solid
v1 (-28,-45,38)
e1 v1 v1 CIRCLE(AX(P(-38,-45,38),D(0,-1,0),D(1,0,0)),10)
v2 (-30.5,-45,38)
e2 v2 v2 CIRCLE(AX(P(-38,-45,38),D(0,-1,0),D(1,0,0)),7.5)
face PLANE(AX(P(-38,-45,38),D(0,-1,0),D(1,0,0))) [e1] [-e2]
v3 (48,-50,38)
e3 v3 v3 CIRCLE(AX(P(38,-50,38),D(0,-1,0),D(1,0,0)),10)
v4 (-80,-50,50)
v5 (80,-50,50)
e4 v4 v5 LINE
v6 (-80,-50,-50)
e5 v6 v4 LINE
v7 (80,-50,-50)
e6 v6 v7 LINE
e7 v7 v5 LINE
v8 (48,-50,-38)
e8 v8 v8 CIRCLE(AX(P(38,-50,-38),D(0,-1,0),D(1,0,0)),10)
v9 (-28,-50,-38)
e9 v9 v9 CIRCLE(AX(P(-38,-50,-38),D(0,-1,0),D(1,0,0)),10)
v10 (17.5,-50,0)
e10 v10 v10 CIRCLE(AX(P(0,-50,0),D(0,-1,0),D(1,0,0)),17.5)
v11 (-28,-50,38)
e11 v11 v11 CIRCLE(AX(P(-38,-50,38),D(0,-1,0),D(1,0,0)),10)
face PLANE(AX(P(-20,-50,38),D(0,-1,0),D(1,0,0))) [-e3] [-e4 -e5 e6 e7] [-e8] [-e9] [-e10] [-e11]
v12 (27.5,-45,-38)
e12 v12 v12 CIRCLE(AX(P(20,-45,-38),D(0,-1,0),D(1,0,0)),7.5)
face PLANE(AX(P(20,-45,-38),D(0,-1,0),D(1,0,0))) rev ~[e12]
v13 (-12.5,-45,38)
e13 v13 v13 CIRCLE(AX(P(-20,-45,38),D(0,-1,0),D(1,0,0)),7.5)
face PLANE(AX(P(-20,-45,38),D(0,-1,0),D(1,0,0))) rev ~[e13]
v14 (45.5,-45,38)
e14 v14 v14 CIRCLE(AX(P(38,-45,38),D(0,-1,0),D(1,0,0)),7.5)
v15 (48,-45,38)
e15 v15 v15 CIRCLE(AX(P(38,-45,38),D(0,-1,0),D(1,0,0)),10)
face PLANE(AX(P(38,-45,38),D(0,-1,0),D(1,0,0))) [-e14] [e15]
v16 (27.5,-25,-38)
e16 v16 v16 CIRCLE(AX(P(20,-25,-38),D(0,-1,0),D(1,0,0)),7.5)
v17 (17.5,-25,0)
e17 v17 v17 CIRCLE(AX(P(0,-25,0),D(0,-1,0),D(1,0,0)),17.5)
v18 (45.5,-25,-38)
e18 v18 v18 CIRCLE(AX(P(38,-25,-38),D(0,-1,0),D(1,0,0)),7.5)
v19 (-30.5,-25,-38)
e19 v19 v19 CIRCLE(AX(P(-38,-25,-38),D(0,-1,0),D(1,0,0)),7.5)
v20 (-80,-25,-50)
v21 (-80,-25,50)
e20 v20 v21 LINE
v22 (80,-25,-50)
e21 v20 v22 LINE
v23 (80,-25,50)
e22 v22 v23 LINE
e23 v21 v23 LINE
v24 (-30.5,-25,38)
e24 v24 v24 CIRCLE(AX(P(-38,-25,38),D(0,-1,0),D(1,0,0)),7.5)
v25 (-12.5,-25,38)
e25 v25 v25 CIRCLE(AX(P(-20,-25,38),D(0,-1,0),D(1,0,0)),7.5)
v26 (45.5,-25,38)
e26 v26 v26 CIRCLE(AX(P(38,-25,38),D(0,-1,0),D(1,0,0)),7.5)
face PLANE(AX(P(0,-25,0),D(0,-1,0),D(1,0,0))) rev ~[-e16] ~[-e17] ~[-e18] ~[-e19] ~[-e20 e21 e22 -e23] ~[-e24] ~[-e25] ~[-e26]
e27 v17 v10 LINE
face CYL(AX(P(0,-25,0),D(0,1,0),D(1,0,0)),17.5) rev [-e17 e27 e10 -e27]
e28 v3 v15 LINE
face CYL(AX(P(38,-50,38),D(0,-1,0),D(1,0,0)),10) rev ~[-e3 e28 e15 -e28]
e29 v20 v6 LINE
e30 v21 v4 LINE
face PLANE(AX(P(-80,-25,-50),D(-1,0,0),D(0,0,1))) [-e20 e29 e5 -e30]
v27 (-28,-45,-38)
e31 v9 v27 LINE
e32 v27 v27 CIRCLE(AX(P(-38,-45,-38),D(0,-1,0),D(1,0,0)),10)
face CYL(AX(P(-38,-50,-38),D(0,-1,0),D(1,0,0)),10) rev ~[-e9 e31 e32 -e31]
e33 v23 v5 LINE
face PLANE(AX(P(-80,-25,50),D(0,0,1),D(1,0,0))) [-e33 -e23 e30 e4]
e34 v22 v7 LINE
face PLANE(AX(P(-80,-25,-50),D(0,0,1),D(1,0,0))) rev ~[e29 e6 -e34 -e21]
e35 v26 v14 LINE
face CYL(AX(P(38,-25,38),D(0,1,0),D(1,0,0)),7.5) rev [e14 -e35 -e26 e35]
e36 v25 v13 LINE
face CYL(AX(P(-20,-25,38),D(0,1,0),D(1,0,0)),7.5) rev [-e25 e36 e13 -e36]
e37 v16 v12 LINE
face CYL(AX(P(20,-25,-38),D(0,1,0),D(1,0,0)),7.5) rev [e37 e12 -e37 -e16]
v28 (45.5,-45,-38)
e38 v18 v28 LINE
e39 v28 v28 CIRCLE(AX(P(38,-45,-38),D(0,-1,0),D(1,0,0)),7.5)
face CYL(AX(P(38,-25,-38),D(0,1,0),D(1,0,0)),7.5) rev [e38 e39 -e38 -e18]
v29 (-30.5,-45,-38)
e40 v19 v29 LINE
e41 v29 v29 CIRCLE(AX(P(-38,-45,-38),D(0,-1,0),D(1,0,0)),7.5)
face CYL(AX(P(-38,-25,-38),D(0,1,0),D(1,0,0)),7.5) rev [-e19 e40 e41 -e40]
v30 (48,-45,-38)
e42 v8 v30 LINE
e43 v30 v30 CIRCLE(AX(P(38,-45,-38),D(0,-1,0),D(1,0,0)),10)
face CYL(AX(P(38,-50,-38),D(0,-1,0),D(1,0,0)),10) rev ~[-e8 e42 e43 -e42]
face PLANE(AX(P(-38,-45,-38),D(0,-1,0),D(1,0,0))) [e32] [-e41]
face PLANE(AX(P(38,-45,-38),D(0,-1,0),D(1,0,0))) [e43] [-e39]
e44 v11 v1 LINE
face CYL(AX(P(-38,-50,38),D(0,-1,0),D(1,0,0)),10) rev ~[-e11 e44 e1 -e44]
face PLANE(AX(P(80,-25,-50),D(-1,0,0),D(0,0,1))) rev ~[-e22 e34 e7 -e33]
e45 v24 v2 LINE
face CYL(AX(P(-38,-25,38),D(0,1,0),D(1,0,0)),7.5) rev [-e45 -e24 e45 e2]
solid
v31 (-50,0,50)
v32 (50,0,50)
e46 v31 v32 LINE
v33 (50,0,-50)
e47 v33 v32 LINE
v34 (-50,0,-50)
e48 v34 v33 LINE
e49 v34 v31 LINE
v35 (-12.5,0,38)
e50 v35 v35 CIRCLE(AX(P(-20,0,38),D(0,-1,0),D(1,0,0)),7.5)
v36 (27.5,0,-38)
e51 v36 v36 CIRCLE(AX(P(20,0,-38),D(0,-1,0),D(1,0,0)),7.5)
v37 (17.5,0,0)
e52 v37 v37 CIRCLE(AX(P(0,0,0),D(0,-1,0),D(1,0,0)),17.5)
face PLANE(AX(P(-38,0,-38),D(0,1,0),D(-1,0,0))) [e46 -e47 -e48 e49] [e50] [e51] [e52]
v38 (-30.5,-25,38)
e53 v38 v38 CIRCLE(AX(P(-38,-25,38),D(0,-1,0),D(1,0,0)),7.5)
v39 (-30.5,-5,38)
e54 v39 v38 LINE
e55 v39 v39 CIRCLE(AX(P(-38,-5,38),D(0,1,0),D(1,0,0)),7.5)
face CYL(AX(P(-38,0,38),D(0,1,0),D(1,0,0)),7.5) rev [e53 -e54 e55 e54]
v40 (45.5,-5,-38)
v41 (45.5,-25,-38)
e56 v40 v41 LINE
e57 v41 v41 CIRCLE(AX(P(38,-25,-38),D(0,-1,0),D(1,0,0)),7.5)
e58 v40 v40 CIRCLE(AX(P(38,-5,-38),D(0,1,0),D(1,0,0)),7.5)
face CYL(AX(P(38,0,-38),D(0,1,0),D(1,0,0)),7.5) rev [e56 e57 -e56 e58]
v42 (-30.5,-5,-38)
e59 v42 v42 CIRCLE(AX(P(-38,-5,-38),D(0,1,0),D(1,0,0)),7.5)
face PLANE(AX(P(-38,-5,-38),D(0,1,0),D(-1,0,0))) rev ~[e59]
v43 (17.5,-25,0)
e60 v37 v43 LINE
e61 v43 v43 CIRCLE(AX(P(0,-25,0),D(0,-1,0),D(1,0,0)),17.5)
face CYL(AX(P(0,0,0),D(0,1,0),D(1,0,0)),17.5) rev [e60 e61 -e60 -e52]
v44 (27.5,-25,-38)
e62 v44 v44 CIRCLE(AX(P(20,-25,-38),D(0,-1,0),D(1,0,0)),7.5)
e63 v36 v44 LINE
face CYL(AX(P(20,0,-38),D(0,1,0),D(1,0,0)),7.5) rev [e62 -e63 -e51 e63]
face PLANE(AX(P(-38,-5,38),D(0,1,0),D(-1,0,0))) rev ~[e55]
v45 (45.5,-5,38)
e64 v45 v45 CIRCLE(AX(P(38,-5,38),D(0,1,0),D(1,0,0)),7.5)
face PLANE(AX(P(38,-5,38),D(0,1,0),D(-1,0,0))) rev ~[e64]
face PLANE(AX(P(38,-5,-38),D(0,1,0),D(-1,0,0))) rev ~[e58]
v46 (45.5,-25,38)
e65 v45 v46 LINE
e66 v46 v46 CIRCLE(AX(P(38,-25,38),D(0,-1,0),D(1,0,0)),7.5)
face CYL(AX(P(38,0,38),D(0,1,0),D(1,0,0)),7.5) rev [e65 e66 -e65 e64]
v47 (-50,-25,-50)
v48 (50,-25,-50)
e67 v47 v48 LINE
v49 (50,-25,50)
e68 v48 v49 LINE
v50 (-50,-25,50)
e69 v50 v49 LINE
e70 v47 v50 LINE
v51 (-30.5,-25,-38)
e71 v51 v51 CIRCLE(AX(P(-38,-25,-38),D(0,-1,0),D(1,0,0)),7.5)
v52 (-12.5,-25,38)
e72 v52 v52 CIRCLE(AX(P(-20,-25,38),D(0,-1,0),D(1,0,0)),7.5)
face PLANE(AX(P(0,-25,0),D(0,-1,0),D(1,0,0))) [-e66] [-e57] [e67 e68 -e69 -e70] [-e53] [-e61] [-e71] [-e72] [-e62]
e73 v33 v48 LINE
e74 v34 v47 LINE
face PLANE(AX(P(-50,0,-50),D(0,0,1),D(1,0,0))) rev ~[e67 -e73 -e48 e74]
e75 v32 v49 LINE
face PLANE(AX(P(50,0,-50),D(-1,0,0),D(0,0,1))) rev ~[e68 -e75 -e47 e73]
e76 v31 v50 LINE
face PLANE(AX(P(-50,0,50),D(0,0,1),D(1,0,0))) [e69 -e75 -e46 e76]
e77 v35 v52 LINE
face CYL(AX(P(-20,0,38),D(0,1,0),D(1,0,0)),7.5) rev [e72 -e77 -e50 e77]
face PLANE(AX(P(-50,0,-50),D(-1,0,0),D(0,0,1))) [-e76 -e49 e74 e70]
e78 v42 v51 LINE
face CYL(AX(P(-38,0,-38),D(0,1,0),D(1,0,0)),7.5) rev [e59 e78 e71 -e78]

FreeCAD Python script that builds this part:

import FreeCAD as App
import Part
import Sketcher

V = App.Vector


def add_polygon(sketch, points):
    """Adds a closed chain of lines whose ends are joined by coincident constraints."""
    first, n = sketch.GeometryCount, len(points)
    for a, b in zip(points, points[1:] + points[:1]):
        sketch.addGeometry(Part.LineSegment(App.Vector(*a, 0), App.Vector(*b, 0)), False)
    for i in range(n):
        sketch.addConstraint(Sketcher.Constraint("Coincident", first + i, 2, first + (i + 1) % n, 1))

doc = App.newDocument("Part")
params = doc.addObject("Spreadsheet::Sheet", "Params")
for row, (alias, value) in enumerate([
    ("sketch1_diameter", "15 mm"),
    ("sketch1_diameter2", "35 mm"),
    ("sketch1_width", "100 mm"),
    ("pad1_length", "25 mm"),
    ("sketch2_diameter", "15 mm"),
    ("pad2_length", "5 mm"),
    ("sketch3_diameter", "15 mm"),
    ("sketch3_diameter2", "35 mm"),
    ("sketch3_width", "160 mm"),
    ("sketch3_height", "100 mm"),
    ("pad3_length", "25 mm"),
    ("sketch4_diameter", "15 mm"),
    ("pad4_length", "5 mm"),
    ("sketch5_diameter", "20 mm"),
    ("sketch5_diameter2", "15 mm"),
    ("pocket1_length", "5 mm"),
], start=1):
    params.set(f"A{row}", alias)
    params.set(f"B{row}", "=" + value)
    params.setAlias(f"B{row}", alias)

body = doc.addObject("PartDesign::Body", "Body")

# Sketch on XZ plane
sketch1 = body.newObject("Sketcher::SketchObject", "Sketch")
sketch1.AttachmentSupport = (doc.getObject("XZ_Plane"), [""])
sketch1.MapMode = "FlatFace"
add_polygon(sketch1, [(-50, 50), (-50, -50), (50, -50), (50, 50)])  # lines 0-3
sketch1.addGeometry(Part.Circle(V(-38, -38, 0), V(0, 0, 1), 7.5), False)  # 4
sketch1.addGeometry(Part.Circle(V(20, -38, 0), V(0, 0, 1), 7.5), False)  # 5
sketch1.addGeometry(Part.Circle(V(38, -38, 0), V(0, 0, 1), 7.5), False)  # 6
sketch1.addGeometry(Part.Circle(V(-38, 38, 0), V(0, 0, 1), 7.5), False)  # 7
sketch1.addGeometry(Part.Circle(V(-20, 38, 0), V(0, 0, 1), 7.5), False)  # 8
sketch1.addGeometry(Part.Circle(V(0, 0, 0), V(0, 0, 1), 17.5), False)  # 9
sketch1.addGeometry(Part.Circle(V(38, 38, 0), V(0, 0, 1), 7.5), False)  # 10
sketch1.addConstraint(Sketcher.Constraint("Vertical", 0))
sketch1.addConstraint(Sketcher.Constraint("Horizontal", 1))
sketch1.addConstraint(Sketcher.Constraint("Vertical", 2))
sketch1.addConstraint(Sketcher.Constraint("Horizontal", 3))
sketch1.addConstraint(Sketcher.Constraint("Coincident", 9, 3, -1, 1))
sketch1.addConstraint(Sketcher.Constraint("Equal", 4, 5))
sketch1.addConstraint(Sketcher.Constraint("Equal", 5, 6))
sketch1.addConstraint(Sketcher.Constraint("Equal", 6, 7))
sketch1.addConstraint(Sketcher.Constraint("Equal", 7, 8))
sketch1.addConstraint(Sketcher.Constraint("Equal", 8, 10))
sketch1.addConstraint(Sketcher.Constraint("Symmetric", 6, 3, 7, 3, -1, 1))
sketch1.addConstraint(Sketcher.Constraint("Symmetric", 5, 3, 8, 3, -1, 1))
sketch1.addConstraint(Sketcher.Constraint("Symmetric", 4, 3, 10, 3, -1, 1))
sketch1.addConstraint(Sketcher.Constraint("Symmetric", 0, 2, 2, 2, -1, 1))
sketch1.addConstraint(Sketcher.Constraint("Symmetric", 4, 3, 6, 3, -2))
sketch1.addConstraint(Sketcher.Constraint("Horizontal", 4, 3, 5, 3))
sketch1.addConstraint(Sketcher.Constraint("Equal", 3, 0))
sketch1.addConstraint(Sketcher.Constraint("Diameter", 4, 15.0))
sketch1.addConstraint(Sketcher.Constraint("Diameter", 9, 35.0))
sketch1.addConstraint(Sketcher.Constraint("DistanceX", 1, 1, 1, 2, 100.0))
sketch1.addConstraint(Sketcher.Constraint("DistanceX", 4, 3, -1, 1, 38.0))
sketch1.addConstraint(Sketcher.Constraint("DistanceY", 4, 3, -1, 1, 38.0))
sketch1.addConstraint(Sketcher.Constraint("DistanceX", -1, 1, 5, 3, 20.0))
sketch1.setExpression("Constraints[21]", "Params.sketch1_diameter")
sketch1.setExpression("Constraints[22]", "Params.sketch1_diameter2")
sketch1.setExpression("Constraints[23]", "Params.sketch1_width")
pad1 = body.newObject("PartDesign::Pad", "Pad")
pad1.Profile = sketch1
pad1.setExpression("Length", "Params.pad1_length")

# Sketch on XZ plane
sketch2 = body.newObject("Sketcher::SketchObject", "Sketch001")
sketch2.AttachmentSupport = (doc.getObject("XZ_Plane"), [""])
sketch2.MapMode = "FlatFace"
sketch2.addGeometry(Part.Circle(V(-38, -38, 0), V(0, 0, 1), 7.5), False)
sketch2.addGeometry(Part.Circle(V(38, -38, 0), V(0, 0, 1), 7.5), False)
sketch2.addGeometry(Part.Circle(V(38, 38, 0), V(0, 0, 1), 7.5), False)
sketch2.addGeometry(Part.Circle(V(-38, 38, 0), V(0, 0, 1), 7.5), False)
sketch2.addConstraint(Sketcher.Constraint("Equal", 0, 1))
sketch2.addConstraint(Sketcher.Constraint("Equal", 1, 2))
sketch2.addConstraint(Sketcher.Constraint("Equal", 2, 3))
sketch2.addConstraint(Sketcher.Constraint("Symmetric", 0, 3, 2, 3, -1, 1))
sketch2.addConstraint(Sketcher.Constraint("Symmetric", 1, 3, 3, 3, -1, 1))
sketch2.addConstraint(Sketcher.Constraint("Symmetric", 0, 3, 1, 3, -2))
sketch2.addConstraint(Sketcher.Constraint("Diameter", 0, 15.0))
sketch2.addConstraint(Sketcher.Constraint("DistanceX", 0, 3, -1, 1, 38.0))
sketch2.addConstraint(Sketcher.Constraint("DistanceY", 0, 3, -1, 1, 38.0))
sketch2.setExpression("Constraints[6]", "Params.sketch2_diameter")
pad2 = body.newObject("PartDesign::Pad", "Pad001")
pad2.Profile = sketch2
pad2.setExpression("Length", "Params.pad2_length")
body2 = doc.addObject("PartDesign::Body", "Body001")

# Sketch on XZ plane
sketch3 = body2.newObject("Sketcher::SketchObject", "Sketch002")
sketch3.AttachmentSupport = (doc.getObject("XZ_Plane001"), [""])
sketch3.MapMode = "FlatFace"
sketch3.AttachmentOffset = App.Placement(V(0, 0, 25), App.Rotation())
add_polygon(sketch3, [(-80, 50), (-80, -50), (80, -50), (80, 50)])  # lines 0-3
sketch3.addGeometry(Part.Circle(V(-38, -38, 0), V(0, 0, 1), 7.5), False)  # 4
sketch3.addGeometry(Part.Circle(V(20, -38, 0), V(0, 0, 1), 7.5), False)  # 5
sketch3.addGeometry(Part.Circle(V(38, -38, 0), V(0, 0, 1), 7.5), False)  # 6
sketch3.addGeometry(Part.Circle(V(-38, 38, 0), V(0, 0, 1), 7.5), False)  # 7
sketch3.addGeometry(Part.Circle(V(-20, 38, 0), V(0, 0, 1), 7.5), False)  # 8
sketch3.addGeometry(Part.Circle(V(0, 0, 0), V(0, 0, 1), 17.5), False)  # 9
sketch3.addGeometry(Part.Circle(V(38, 38, 0), V(0, 0, 1), 7.5), False)  # 10
sketch3.addConstraint(Sketcher.Constraint("Vertical", 0))
sketch3.addConstraint(Sketcher.Constraint("Horizontal", 1))
sketch3.addConstraint(Sketcher.Constraint("Vertical", 2))
sketch3.addConstraint(Sketcher.Constraint("Horizontal", 3))
sketch3.addConstraint(Sketcher.Constraint("Coincident", 9, 3, -1, 1))
sketch3.addConstraint(Sketcher.Constraint("Equal", 4, 5))
sketch3.addConstraint(Sketcher.Constraint("Equal", 5, 6))
sketch3.addConstraint(Sketcher.Constraint("Equal", 6, 7))
sketch3.addConstraint(Sketcher.Constraint("Equal", 7, 8))
sketch3.addConstraint(Sketcher.Constraint("Equal", 8, 10))
sketch3.addConstraint(Sketcher.Constraint("Symmetric", 6, 3, 7, 3, -1, 1))
sketch3.addConstraint(Sketcher.Constraint("Symmetric", 5, 3, 8, 3, -1, 1))
sketch3.addConstraint(Sketcher.Constraint("Symmetric", 4, 3, 10, 3, -1, 1))
sketch3.addConstraint(Sketcher.Constraint("Symmetric", 0, 2, 2, 2, -1, 1))
sketch3.addConstraint(Sketcher.Constraint("Symmetric", 4, 3, 6, 3, -2))
sketch3.addConstraint(Sketcher.Constraint("Horizontal", 4, 3, 5, 3))
sketch3.addConstraint(Sketcher.Constraint("Diameter", 4, 15.0))
sketch3.addConstraint(Sketcher.Constraint("Diameter", 9, 35.0))
sketch3.addConstraint(Sketcher.Constraint("DistanceX", 1, 1, 1, 2, 160.0))
sketch3.addConstraint(Sketcher.Constraint("DistanceY", 0, 2, 0, 1, 100.0))
sketch3.addConstraint(Sketcher.Constraint("DistanceX", 4, 3, -1, 1, 38.0))
sketch3.addConstraint(Sketcher.Constraint("DistanceY", 4, 3, -1, 1, 38.0))
sketch3.addConstraint(Sketcher.Constraint("DistanceX", -1, 1, 5, 3, 20.0))
sketch3.setExpression("Constraints[20]", "Params.sketch3_diameter")
sketch3.setExpression("Constraints[21]", "Params.sketch3_diameter2")
sketch3.setExpression("Constraints[22]", "Params.sketch3_width")
sketch3.setExpression("Constraints[23]", "Params.sketch3_height")
pad3 = body2.newObject("PartDesign::Pad", "Pad002")
pad3.Profile = sketch3
pad3.setExpression("Length", "Params.pad3_length")

# Sketch on XZ plane
sketch4 = body2.newObject("Sketcher::SketchObject", "Sketch003")
sketch4.AttachmentSupport = (doc.getObject("XZ_Plane001"), [""])
sketch4.MapMode = "FlatFace"
sketch4.AttachmentOffset = App.Placement(V(0, 0, 50), App.Rotation())
sketch4.addGeometry(Part.Circle(V(-20, 38, 0), V(0, 0, 1), 7.5), False)
sketch4.addGeometry(Part.Circle(V(20, -38, 0), V(0, 0, 1), 7.5), False)
sketch4.addConstraint(Sketcher.Constraint("Equal", 0, 1))
sketch4.addConstraint(Sketcher.Constraint("Symmetric", 0, 3, 1, 3, -1, 1))
sketch4.addConstraint(Sketcher.Constraint("Diameter", 0, 15.0))
sketch4.addConstraint(Sketcher.Constraint("DistanceX", 0, 3, -1, 1, 20.0))
sketch4.addConstraint(Sketcher.Constraint("DistanceY", -1, 1, 0, 3, 38.0))
sketch4.setExpression("Constraints[2]", "Params.sketch4_diameter")
pad4 = body2.newObject("PartDesign::Pad", "Pad003")
pad4.Profile = sketch4
pad4.setExpression("Length", "Params.pad4_length")
pad4.Reversed = True

# Sketch on XZ plane
sketch5 = body2.newObject("Sketcher::SketchObject", "Sketch004")
sketch5.AttachmentSupport = (doc.getObject("XZ_Plane001"), [""])
sketch5.MapMode = "FlatFace"
sketch5.AttachmentOffset = App.Placement(V(0, 0, 50), App.Rotation())
sketch5.addGeometry(Part.Circle(V(38, -38, 0), V(0, 0, 1), 10), False)
sketch5.addGeometry(Part.Circle(V(38, -38, 0), V(0, 0, 1), 7.5), False)
sketch5.addGeometry(Part.Circle(V(38, 38, 0), V(0, 0, 1), 10), False)
sketch5.addGeometry(Part.Circle(V(38, 38, 0), V(0, 0, 1), 7.5), False)
sketch5.addGeometry(Part.Circle(V(-38, 38, 0), V(0, 0, 1), 10), False)
sketch5.addGeometry(Part.Circle(V(-38, 38, 0), V(0, 0, 1), 7.5), False)
sketch5.addGeometry(Part.Circle(V(-38, -38, 0), V(0, 0, 1), 10), False)
sketch5.addGeometry(Part.Circle(V(-38, -38, 0), V(0, 0, 1), 7.5), False)
sketch5.addConstraint(Sketcher.Constraint("Coincident", 1, 3, 0, 3))
sketch5.addConstraint(Sketcher.Constraint("Coincident", 3, 3, 2, 3))
sketch5.addConstraint(Sketcher.Constraint("Coincident", 5, 3, 4, 3))
sketch5.addConstraint(Sketcher.Constraint("Coincident", 7, 3, 6, 3))
sketch5.addConstraint(Sketcher.Constraint("Equal", 0, 2))
sketch5.addConstraint(Sketcher.Constraint("Equal", 1, 3))
sketch5.addConstraint(Sketcher.Constraint("Equal", 2, 4))
sketch5.addConstraint(Sketcher.Constraint("Equal", 3, 5))
sketch5.addConstraint(Sketcher.Constraint("Equal", 4, 6))
sketch5.addConstraint(Sketcher.Constraint("Equal", 5, 7))
sketch5.addConstraint(Sketcher.Constraint("Symmetric", 0, 3, 4, 3, -1, 1))
sketch5.addConstraint(Sketcher.Constraint("Symmetric", 2, 3, 6, 3, -1, 1))
sketch5.addConstraint(Sketcher.Constraint("Symmetric", 2, 3, 4, 3, -2))
sketch5.addConstraint(Sketcher.Constraint("Diameter", 0, 20.0))
sketch5.addConstraint(Sketcher.Constraint("Diameter", 1, 15.0))
sketch5.addConstraint(Sketcher.Constraint("DistanceX", -1, 1, 0, 3, 38.0))
sketch5.addConstraint(Sketcher.Constraint("DistanceY", 0, 3, -1, 1, 38.0))
sketch5.setExpression("Constraints[13]", "Params.sketch5_diameter")
sketch5.setExpression("Constraints[14]", "Params.sketch5_diameter2")
pocket1 = body2.newObject("PartDesign::Pocket", "Pocket")
pocket1.Profile = sketch5
pocket1.setExpression("Length", "Params.pocket1_length")

doc.recompute()
